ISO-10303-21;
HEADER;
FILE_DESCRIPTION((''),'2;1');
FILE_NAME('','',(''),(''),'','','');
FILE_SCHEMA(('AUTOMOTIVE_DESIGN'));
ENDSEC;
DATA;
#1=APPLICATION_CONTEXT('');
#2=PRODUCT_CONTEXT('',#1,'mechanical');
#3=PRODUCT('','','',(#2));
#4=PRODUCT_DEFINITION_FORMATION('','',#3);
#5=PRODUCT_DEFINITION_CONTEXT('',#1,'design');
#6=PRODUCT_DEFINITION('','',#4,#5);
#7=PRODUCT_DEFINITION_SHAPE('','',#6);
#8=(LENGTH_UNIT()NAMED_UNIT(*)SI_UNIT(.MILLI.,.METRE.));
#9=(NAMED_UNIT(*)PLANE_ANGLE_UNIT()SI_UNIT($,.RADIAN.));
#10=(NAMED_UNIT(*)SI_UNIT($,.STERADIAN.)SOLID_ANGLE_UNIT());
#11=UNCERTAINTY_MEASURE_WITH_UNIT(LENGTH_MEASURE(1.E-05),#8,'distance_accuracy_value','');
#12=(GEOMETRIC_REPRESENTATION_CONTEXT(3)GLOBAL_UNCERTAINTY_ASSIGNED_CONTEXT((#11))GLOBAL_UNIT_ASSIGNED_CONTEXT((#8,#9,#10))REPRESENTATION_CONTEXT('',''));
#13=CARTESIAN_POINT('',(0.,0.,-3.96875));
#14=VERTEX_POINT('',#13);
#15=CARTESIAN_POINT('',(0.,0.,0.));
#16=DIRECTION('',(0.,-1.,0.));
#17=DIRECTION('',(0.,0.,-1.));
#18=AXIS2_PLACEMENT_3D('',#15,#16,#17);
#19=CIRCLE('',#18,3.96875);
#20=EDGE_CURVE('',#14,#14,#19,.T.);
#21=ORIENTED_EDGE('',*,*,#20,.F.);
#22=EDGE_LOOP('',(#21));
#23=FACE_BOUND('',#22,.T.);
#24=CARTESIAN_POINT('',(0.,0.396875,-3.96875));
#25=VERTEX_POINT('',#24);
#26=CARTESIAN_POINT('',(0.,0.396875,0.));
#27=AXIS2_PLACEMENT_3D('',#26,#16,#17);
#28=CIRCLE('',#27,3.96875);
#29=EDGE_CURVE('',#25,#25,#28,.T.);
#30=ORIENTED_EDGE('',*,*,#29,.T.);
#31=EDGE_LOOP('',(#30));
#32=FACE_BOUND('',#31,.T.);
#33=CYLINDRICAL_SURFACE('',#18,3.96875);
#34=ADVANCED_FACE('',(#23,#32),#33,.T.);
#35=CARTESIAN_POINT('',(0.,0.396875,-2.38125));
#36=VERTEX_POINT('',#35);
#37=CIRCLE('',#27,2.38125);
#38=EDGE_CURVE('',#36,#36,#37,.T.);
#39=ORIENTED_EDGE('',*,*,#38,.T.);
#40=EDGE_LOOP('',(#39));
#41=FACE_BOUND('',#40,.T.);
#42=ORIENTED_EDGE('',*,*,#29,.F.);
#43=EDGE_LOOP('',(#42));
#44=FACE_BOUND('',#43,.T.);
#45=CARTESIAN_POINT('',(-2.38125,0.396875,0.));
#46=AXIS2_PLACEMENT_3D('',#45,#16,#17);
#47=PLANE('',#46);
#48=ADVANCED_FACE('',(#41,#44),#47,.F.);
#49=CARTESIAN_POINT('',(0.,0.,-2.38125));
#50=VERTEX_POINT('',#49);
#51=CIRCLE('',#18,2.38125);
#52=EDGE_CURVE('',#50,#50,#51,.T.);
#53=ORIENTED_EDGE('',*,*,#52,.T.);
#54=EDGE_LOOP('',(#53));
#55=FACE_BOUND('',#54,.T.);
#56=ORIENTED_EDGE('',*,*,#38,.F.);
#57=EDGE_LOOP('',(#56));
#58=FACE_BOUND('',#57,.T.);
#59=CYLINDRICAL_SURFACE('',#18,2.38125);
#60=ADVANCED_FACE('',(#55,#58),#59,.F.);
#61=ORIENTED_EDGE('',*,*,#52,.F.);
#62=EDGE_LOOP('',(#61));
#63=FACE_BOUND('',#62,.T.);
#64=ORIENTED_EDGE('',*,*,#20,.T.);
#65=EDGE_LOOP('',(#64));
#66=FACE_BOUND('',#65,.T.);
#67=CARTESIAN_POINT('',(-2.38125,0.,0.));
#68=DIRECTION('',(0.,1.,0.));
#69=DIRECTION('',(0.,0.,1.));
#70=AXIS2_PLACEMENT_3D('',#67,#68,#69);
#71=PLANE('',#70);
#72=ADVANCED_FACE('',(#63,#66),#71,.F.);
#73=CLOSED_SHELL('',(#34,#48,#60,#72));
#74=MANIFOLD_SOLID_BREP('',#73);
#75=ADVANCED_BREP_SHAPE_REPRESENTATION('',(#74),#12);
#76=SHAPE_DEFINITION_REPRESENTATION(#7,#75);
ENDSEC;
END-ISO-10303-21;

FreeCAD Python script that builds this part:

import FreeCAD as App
import Part
import Sketcher
Q = App.Units.Quantity


def add_polygon(sketch, points):
    """Adds a closed chain of lines whose ends are joined by coincident constraints."""
    first, n = sketch.GeometryCount, len(points)
    for a, b in zip(points, points[1:] + points[:1]):
        sketch.addGeometry(Part.LineSegment(App.Vector(*a, 0), App.Vector(*b, 0)), False)
    for i in range(n):
        sketch.addConstraint(Sketcher.Constraint("Coincident", first + i, 2, first + (i + 1) % n, 1))

doc = App.newDocument("Part")
params = doc.addObject("Spreadsheet::Sheet", "Params")
for row, (alias, value) in enumerate([
    ("sketch1_width", "0.0625 in"),
    ("sketch1_height", "0.015625 in"),
    ("revolution_angle", "360 deg"),
], start=1):
    params.set(f"A{row}", alias)
    params.set(f"B{row}", "=" + value)
    params.setAlias(f"B{row}", alias)

body = doc.addObject("PartDesign::Body", "Body")

sketch1 = body.newObject("Sketcher::SketchObject", "Sketch")
sketch1.AttachmentSupport = (doc.getObject("XY_Plane"), [""])
sketch1.MapMode = "FlatFace"
add_polygon(sketch1, [(-3.97, 0.4), (-3.97, 0), (-2.38, 0), (-2.38, 0.4)])
sketch1.addConstraint([
    Sketcher.Constraint("Vertical", 0),
    Sketcher.Constraint("Horizontal", 1),
    Sketcher.Constraint("Vertical", 2),
    Sketcher.Constraint("Horizontal", 3),
    Sketcher.Constraint("PointOnObject", 0, 2, -1),
    Sketcher.Constraint("DistanceX", 1, 1, 1, 2, Q("0.0625 in")),
    Sketcher.Constraint("DistanceY", 0, 2, 0, 1, Q("0.015625 in")),
    Sketcher.Constraint("DistanceX", 0, 2, -1, 1, Q("0.15625 in")),
])
sketch1.setExpression("Constraints[9]", "Params.sketch1_width")
sketch1.setExpression("Constraints[10]", "Params.sketch1_height")
revolution = body.newObject("PartDesign::Revolution", "Revolution")
revolution.Profile = sketch1
revolution.ReferenceAxis = (sketch1, ["V_Axis"])
revolution.setExpression("Angle", "Params.revolution_angle")

doc.recompute()
